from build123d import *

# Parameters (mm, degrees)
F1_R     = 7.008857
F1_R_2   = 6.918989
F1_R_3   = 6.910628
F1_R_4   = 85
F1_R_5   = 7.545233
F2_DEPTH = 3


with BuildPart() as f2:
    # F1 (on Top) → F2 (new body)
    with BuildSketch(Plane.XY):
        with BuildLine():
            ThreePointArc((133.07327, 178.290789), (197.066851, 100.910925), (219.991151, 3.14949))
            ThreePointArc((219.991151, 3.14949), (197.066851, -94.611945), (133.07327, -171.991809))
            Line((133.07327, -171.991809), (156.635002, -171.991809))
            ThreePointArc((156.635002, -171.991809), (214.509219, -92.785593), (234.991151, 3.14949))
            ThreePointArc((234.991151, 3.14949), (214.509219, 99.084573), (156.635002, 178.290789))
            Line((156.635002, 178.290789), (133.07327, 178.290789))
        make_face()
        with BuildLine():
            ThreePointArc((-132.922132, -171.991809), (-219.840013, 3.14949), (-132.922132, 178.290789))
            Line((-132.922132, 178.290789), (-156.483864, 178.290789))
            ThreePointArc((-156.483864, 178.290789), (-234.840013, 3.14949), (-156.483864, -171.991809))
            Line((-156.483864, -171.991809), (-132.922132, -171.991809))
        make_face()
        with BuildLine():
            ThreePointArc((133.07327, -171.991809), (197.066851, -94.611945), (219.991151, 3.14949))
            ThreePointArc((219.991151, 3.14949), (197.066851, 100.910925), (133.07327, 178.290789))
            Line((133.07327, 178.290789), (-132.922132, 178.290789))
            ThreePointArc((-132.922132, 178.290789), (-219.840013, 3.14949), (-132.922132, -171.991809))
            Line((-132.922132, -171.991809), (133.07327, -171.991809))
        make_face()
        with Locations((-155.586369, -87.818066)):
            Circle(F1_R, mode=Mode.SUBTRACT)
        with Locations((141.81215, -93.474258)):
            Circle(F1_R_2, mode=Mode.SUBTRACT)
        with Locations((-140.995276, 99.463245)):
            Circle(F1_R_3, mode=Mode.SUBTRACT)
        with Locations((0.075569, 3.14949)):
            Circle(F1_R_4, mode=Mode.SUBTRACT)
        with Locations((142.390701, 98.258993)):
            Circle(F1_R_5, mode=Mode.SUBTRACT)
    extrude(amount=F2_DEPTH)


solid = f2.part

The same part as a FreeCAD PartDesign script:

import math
import FreeCAD as App
import Part
import Sketcher

V = App.Vector
Q = App.Units.Quantity

doc = App.newDocument("Part")
body = doc.addObject("PartDesign::Body", "Body")

# Sketch on XY plane
sketch1 = doc.addObject("Sketcher::SketchObject", "Sketch")
body.addObject(sketch1)
sketch1.AttachmentSupport = (doc.XY_Plane, [""])
sketch1.MapMode = "FlatFace"
sketch1.addGeometry([
    Part.ArcOfCircle(Part.Circle(V(0, 3, 0), V(0, 0, 1), 235), math.radians(-48), math.radians(0)),  # 0
    Part.ArcOfCircle(Part.Circle(V(0, 3, 0), V(0, 0, 1), 235), math.radians(0), math.radians(48)),  # 1
    Part.LineSegment(V(157, 178, 0), V(-156, 178, 0)),  # 2
    Part.ArcOfCircle(Part.Circle(V(0, 3, 0), V(0, 0, 1), 235), math.radians(132), math.radians(228)),  # 3
    Part.LineSegment(V(-156, -172, 0), V(157, -172, 0)),  # 4
    Part.Circle(V(-156, -88, 0), V(0, 0, 1), 7),  # 5
    Part.Circle(V(142, -93, 0), V(0, 0, 1), 7),  # 6
    Part.Circle(V(-141, 99, 0), V(0, 0, 1), 7),  # 7
    Part.Circle(V(0, 3, 0), V(0, 0, 1), 85),  # 8
    Part.Circle(V(142, 98, 0), V(0, 0, 1), 8),  # 9
], False)
sketch1.addConstraint([
    Sketcher.Constraint("Tangent", 0, 2, 1, 1),
    Sketcher.Constraint("Coincident", 1, 2, 2, 1),
    Sketcher.Constraint("Coincident", 2, 2, 3, 1),
    Sketcher.Constraint("Coincident", 3, 2, 4, 1),
    Sketcher.Constraint("Coincident", 4, 2, 0, 1),
    Sketcher.Constraint("Horizontal", 2),
    Sketcher.Constraint("Horizontal", 4),
    Sketcher.Constraint("Coincident", 3, 3, 0, 3),
    Sketcher.Constraint("Coincident", 8, 3, 0, 3),
    Sketcher.Constraint("Equal", 0, 1),
    Sketcher.Constraint("Horizontal", 8, 3, 0, 2),
    Sketcher.Constraint("Vertical", 2, 2, 3, 2),
    Sketcher.Constraint("Diameter", 8, Q("170 mm")),
    Sketcher.Constraint("Radius", 0, Q("234.915588 mm")),
    Sketcher.Constraint("Diameter", 5, Q("14.017714 mm")),
    Sketcher.Constraint("Diameter", 6, Q("13.837978 mm")),
    Sketcher.Constraint("Diameter", 7, Q("13.821256 mm")),
    Sketcher.Constraint("Diameter", 9, Q("15.090466 mm")),
    Sketcher.Constraint("DistanceX", -1, 1, 4, 2, Q("156.635002 mm")),
    Sketcher.Constraint("Radius", 3, Q("234.915582 mm")),
    Sketcher.Constraint("DistanceX", 6, 3, 0, 2, Q("93.179001 mm")),
    Sketcher.Constraint("DistanceX", -1, 1, 9, 3, Q("142.390701 mm")),
    Sketcher.Constraint("DistanceY", 0, 3, 9, 3, Q("95.1095 mm")),
    Sketcher.Constraint("DistanceY", 1, 3, 2, 2, Q("175.141302 mm")),
    Sketcher.Constraint("DistanceY", -1, 1, 3, 3, Q("3.14949 mm")),
    Sketcher.Constraint("DistanceX", 5, 3, -1, 1, Q("155.586369 mm")),
    Sketcher.Constraint("DistanceY", 6, 3, -1, 1, Q("93.474258 mm")),
    Sketcher.Constraint("DistanceY", 5, 3, 0, 3, Q("90.967559 mm")),
    Sketcher.Constraint("DistanceX", 7, 3, 0, 3, Q("141.070839 mm")),
    Sketcher.Constraint("DistanceY", 5, 3, 7, 3, Q("187.281311 mm")),
])
pad1 = doc.addObject("PartDesign::Pad", "Pad")
body.addObject(pad1)
pad1.Profile = sketch1
pad1.Length = 3

doc.recompute()
